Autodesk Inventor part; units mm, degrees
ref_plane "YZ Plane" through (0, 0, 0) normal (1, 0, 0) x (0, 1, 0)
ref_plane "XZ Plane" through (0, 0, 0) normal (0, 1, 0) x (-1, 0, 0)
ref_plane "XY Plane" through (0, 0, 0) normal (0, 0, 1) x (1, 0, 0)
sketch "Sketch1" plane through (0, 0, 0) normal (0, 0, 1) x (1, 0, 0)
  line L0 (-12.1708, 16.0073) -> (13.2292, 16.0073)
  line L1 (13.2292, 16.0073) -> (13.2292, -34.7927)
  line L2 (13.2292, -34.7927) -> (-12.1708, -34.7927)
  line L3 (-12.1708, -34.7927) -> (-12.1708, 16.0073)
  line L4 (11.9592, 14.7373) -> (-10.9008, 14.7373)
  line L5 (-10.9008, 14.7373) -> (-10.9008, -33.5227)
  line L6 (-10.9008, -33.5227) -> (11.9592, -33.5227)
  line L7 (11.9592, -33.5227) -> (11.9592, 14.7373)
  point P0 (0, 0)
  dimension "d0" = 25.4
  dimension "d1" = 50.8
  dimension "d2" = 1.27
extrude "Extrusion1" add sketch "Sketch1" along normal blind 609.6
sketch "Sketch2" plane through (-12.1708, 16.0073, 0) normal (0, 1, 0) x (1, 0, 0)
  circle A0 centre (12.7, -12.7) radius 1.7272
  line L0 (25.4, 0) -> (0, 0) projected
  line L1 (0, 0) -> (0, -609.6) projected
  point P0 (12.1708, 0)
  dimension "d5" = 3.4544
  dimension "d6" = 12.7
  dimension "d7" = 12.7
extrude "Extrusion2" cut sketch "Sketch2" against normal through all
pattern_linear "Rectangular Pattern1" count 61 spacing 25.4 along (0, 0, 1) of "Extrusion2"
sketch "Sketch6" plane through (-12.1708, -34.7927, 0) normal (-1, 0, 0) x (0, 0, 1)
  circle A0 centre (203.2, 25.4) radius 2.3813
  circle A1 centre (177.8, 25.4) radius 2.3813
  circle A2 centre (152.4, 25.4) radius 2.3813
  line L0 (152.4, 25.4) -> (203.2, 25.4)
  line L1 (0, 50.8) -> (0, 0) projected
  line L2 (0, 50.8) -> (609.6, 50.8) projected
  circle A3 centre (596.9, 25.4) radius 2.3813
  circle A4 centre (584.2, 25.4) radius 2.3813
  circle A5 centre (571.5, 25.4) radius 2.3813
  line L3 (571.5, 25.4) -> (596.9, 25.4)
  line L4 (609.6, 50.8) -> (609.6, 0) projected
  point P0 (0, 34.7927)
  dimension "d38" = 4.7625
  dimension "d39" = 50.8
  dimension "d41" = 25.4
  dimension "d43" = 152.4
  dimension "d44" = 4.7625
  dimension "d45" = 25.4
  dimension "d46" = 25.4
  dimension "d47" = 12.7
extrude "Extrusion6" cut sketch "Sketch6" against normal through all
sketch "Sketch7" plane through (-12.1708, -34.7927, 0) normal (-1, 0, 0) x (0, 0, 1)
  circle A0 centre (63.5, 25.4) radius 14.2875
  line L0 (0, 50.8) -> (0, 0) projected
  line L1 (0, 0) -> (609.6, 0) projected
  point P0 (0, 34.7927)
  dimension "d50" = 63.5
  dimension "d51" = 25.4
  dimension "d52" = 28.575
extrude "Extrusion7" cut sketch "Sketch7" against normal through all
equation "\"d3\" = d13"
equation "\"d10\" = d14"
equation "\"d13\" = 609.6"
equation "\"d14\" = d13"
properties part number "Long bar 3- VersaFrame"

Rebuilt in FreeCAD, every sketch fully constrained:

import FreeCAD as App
import Part
import Sketcher
Q = App.Units.Quantity


def add_polygon(sketch, points):
    """Adds a closed chain of lines whose ends are joined by coincident constraints."""
    first, n = sketch.GeometryCount, len(points)
    for a, b in zip(points, points[1:] + points[:1]):
        sketch.addGeometry(Part.LineSegment(App.Vector(*a, 0), App.Vector(*b, 0)), False)
    for i in range(n):
        sketch.addConstraint(Sketcher.Constraint("Coincident", first + i, 2, first + (i + 1) % n, 1))

doc = App.newDocument("Part")
body = doc.addObject("PartDesign::Body", "Body")

# Sketch on XY plane
sketch1 = doc.addObject("Sketcher::SketchObject", "Sketch")
body.addObject(sketch1)
sketch1.AttachmentSupport = (doc.XY_Plane, [""])
sketch1.MapMode = "FlatFace"
add_polygon(sketch1, [(13.2292, 16.0073), (-12.1708, 16.0073), (-12.1708, -34.7927), (13.2292, -34.7927)])  # lines 0-3
add_polygon(sketch1, [(-10.9008, 14.7373), (11.9592, 14.7373), (11.9592, -33.5227), (-10.9008, -33.5227)])  # lines 4-7
sketch1.addConstraint([
    Sketcher.Constraint("Horizontal", 0),
    Sketcher.Constraint("Vertical", 1),
    Sketcher.Constraint("Horizontal", 2),
    Sketcher.Constraint("Vertical", 3),
    Sketcher.Constraint("Horizontal", 4),
    Sketcher.Constraint("Vertical", 5),
    Sketcher.Constraint("Horizontal", 6),
    Sketcher.Constraint("Vertical", 7),
    Sketcher.Constraint("DistanceX", 0, 2, 0, 1, Q("1 in")),
    Sketcher.Constraint("DistanceY", 1, 2, 1, 1, Q("2 in")),
    Sketcher.Constraint("DistanceX", 4, 2, 3, 2, Q("0.05 in")),
    Sketcher.Constraint("DistanceY", 4, 2, 3, 2, Q("0.05 in")),
    Sketcher.Constraint("DistanceY", 2, 2, 5, 2, Q("0.05 in")),
    Sketcher.Constraint("DistanceX", 1, 2, 6, 2, Q("0.05 in")),
    Sketcher.Constraint("DistanceY", -1, 1, 0, 2, Q("0.6302 in")),
    Sketcher.Constraint("DistanceX", 0, 2, -1, 1, Q("12.1708 mm")),
])
pad1 = doc.addObject("PartDesign::Pad", "Pad")
body.addObject(pad1)
pad1.Profile = sketch1
pad1.Length = Q("24 in")

# Sketch on XZ plane
sketch2 = doc.addObject("Sketcher::SketchObject", "Sketch001")
body.addObject(sketch2)
sketch2.AttachmentSupport = (doc.XZ_Plane, [""])
sketch2.MapMode = "FlatFace"
sketch2.AttachmentOffset = App.Placement(App.Vector(0, 0, -0.6302087 * 25.4), App.Rotation())
sketch2.addGeometry(Part.Circle(App.Vector(0.5292, 12.7, 0), App.Vector(0, 0, 1), 1.7272), False)
sketch2.addConstraint([
    Sketcher.Constraint("Diameter", 0, Q("0.136 in")),
    Sketcher.Constraint("DistanceY", -1, 1, 0, 3, Q("0.5 in")),
    Sketcher.Constraint("DistanceX", -1, 1, 0, 3, Q("0.5292 mm")),
])
pocket1 = doc.addObject("PartDesign::Pocket", "Pocket")
body.addObject(pocket1)
pocket1.Profile = sketch2
pocket1.Type = "ThroughAll"
pocket1.Reversed = True
doc.recompute()

linearpattern = doc.addObject("PartDesign::LinearPattern", "LinearPattern")
body.addObject(linearpattern)
linearpattern.Originals = [pocket1]
linearpattern.Direction = (doc.Z_Axis, [""])
linearpattern.Mode = "offset"
linearpattern.Offset = Q("1 in")
linearpattern.Occurrences = 61
body.Tip = linearpattern

# Sketch on YZ plane
sketch3 = doc.addObject("Sketcher::SketchObject", "Sketch002")
body.addObject(sketch3)
sketch3.AttachmentSupport = (doc.YZ_Plane, [""])
sketch3.MapMode = "FlatFace"
sketch3.AttachmentOffset = App.Placement(App.Vector(0, 0, -12.1708), App.Rotation())
sketch3.addGeometry([
    Part.Circle(App.Vector(-9.3927, 203.2, 0), App.Vector(0, 0, 1), 2.3813),  # 0
    Part.Circle(App.Vector(-9.3927, 152.4, 0), App.Vector(0, 0, 1), 2.3813),  # 1
    Part.Circle(App.Vector(-9.3927, 177.8, 0), App.Vector(0, 0, 1), 2.3813),  # 2
    Part.Circle(App.Vector(-9.3927, 596.9, 0), App.Vector(0, 0, 1), 2.3813),  # 3
    Part.Circle(App.Vector(-9.3927, 571.5, 0), App.Vector(0, 0, 1), 2.3813),  # 4
    Part.Circle(App.Vector(-9.3927, 584.2, 0), App.Vector(0, 0, 1), 2.3813),  # 5
], False)
sketch3.addConstraint([
    Sketcher.Constraint("Equal", 0, 1),
    Sketcher.Constraint("Equal", 1, 2),
    Sketcher.Constraint("Equal", 2, 3),
    Sketcher.Constraint("Equal", 3, 4),
    Sketcher.Constraint("Equal", 4, 5),
    Sketcher.Constraint("Vertical", 0, 3, 1, 3),
    Sketcher.Constraint("Vertical", 1, 3, 2, 3),
    Sketcher.Constraint("Vertical", 2, 3, 3, 3),
    Sketcher.Constraint("Vertical", 3, 3, 4, 3),
    Sketcher.Constraint("Vertical", 4, 3, 5, 3),
    Sketcher.Constraint("Diameter", 0, Q("0.1875 in")),
    Sketcher.Constraint("DistanceY", -1, 1, 1, 3, Q("6 in")),
    Sketcher.Constraint("DistanceY", 1, 3, 0, 3, Q("2 in")),
    Sketcher.Constraint("DistanceY", 2, 3, 0, 3, Q("1 in")),
    Sketcher.Constraint("DistanceY", 4, 3, 3, 3, Q("1 in")),
    Sketcher.Constraint("DistanceY", 5, 3, 3, 3, Q("0.5 in")),
    Sketcher.Constraint("DistanceY", -1, 1, 5, 3, Q("23 in")),
    Sketcher.Constraint("DistanceX", 0, 3, -1, 1, Q("0.3698 in")),
])
pocket2 = doc.addObject("PartDesign::Pocket", "Pocket001")
body.addObject(pocket2)
pocket2.Profile = sketch3
pocket2.Type = "ThroughAll"
pocket2.Reversed = True

# Sketch on YZ plane
sketch4 = doc.addObject("Sketcher::SketchObject", "Sketch003")
body.addObject(sketch4)
sketch4.AttachmentSupport = (doc.YZ_Plane, [""])
sketch4.MapMode = "FlatFace"
sketch4.AttachmentOffset = App.Placement(App.Vector(0, 0, -12.1708), App.Rotation())
sketch4.addGeometry(Part.Circle(App.Vector(-9.3927, 63.5, 0), App.Vector(0, 0, 1), 14.2875), False)
sketch4.addConstraint([
    Sketcher.Constraint("Diameter", 0, Q("1.125 in")),
    Sketcher.Constraint("DistanceY", -1, 1, 0, 3, Q("2.5 in")),
    Sketcher.Constraint("DistanceX", 0, 3, -1, 1, Q("0.3698 in")),
])
pocket3 = doc.addObject("PartDesign::Pocket", "Pocket002")
body.addObject(pocket3)
pocket3.Profile = sketch4
pocket3.Type = "ThroughAll"
pocket3.Reversed = True

doc.recompute()
